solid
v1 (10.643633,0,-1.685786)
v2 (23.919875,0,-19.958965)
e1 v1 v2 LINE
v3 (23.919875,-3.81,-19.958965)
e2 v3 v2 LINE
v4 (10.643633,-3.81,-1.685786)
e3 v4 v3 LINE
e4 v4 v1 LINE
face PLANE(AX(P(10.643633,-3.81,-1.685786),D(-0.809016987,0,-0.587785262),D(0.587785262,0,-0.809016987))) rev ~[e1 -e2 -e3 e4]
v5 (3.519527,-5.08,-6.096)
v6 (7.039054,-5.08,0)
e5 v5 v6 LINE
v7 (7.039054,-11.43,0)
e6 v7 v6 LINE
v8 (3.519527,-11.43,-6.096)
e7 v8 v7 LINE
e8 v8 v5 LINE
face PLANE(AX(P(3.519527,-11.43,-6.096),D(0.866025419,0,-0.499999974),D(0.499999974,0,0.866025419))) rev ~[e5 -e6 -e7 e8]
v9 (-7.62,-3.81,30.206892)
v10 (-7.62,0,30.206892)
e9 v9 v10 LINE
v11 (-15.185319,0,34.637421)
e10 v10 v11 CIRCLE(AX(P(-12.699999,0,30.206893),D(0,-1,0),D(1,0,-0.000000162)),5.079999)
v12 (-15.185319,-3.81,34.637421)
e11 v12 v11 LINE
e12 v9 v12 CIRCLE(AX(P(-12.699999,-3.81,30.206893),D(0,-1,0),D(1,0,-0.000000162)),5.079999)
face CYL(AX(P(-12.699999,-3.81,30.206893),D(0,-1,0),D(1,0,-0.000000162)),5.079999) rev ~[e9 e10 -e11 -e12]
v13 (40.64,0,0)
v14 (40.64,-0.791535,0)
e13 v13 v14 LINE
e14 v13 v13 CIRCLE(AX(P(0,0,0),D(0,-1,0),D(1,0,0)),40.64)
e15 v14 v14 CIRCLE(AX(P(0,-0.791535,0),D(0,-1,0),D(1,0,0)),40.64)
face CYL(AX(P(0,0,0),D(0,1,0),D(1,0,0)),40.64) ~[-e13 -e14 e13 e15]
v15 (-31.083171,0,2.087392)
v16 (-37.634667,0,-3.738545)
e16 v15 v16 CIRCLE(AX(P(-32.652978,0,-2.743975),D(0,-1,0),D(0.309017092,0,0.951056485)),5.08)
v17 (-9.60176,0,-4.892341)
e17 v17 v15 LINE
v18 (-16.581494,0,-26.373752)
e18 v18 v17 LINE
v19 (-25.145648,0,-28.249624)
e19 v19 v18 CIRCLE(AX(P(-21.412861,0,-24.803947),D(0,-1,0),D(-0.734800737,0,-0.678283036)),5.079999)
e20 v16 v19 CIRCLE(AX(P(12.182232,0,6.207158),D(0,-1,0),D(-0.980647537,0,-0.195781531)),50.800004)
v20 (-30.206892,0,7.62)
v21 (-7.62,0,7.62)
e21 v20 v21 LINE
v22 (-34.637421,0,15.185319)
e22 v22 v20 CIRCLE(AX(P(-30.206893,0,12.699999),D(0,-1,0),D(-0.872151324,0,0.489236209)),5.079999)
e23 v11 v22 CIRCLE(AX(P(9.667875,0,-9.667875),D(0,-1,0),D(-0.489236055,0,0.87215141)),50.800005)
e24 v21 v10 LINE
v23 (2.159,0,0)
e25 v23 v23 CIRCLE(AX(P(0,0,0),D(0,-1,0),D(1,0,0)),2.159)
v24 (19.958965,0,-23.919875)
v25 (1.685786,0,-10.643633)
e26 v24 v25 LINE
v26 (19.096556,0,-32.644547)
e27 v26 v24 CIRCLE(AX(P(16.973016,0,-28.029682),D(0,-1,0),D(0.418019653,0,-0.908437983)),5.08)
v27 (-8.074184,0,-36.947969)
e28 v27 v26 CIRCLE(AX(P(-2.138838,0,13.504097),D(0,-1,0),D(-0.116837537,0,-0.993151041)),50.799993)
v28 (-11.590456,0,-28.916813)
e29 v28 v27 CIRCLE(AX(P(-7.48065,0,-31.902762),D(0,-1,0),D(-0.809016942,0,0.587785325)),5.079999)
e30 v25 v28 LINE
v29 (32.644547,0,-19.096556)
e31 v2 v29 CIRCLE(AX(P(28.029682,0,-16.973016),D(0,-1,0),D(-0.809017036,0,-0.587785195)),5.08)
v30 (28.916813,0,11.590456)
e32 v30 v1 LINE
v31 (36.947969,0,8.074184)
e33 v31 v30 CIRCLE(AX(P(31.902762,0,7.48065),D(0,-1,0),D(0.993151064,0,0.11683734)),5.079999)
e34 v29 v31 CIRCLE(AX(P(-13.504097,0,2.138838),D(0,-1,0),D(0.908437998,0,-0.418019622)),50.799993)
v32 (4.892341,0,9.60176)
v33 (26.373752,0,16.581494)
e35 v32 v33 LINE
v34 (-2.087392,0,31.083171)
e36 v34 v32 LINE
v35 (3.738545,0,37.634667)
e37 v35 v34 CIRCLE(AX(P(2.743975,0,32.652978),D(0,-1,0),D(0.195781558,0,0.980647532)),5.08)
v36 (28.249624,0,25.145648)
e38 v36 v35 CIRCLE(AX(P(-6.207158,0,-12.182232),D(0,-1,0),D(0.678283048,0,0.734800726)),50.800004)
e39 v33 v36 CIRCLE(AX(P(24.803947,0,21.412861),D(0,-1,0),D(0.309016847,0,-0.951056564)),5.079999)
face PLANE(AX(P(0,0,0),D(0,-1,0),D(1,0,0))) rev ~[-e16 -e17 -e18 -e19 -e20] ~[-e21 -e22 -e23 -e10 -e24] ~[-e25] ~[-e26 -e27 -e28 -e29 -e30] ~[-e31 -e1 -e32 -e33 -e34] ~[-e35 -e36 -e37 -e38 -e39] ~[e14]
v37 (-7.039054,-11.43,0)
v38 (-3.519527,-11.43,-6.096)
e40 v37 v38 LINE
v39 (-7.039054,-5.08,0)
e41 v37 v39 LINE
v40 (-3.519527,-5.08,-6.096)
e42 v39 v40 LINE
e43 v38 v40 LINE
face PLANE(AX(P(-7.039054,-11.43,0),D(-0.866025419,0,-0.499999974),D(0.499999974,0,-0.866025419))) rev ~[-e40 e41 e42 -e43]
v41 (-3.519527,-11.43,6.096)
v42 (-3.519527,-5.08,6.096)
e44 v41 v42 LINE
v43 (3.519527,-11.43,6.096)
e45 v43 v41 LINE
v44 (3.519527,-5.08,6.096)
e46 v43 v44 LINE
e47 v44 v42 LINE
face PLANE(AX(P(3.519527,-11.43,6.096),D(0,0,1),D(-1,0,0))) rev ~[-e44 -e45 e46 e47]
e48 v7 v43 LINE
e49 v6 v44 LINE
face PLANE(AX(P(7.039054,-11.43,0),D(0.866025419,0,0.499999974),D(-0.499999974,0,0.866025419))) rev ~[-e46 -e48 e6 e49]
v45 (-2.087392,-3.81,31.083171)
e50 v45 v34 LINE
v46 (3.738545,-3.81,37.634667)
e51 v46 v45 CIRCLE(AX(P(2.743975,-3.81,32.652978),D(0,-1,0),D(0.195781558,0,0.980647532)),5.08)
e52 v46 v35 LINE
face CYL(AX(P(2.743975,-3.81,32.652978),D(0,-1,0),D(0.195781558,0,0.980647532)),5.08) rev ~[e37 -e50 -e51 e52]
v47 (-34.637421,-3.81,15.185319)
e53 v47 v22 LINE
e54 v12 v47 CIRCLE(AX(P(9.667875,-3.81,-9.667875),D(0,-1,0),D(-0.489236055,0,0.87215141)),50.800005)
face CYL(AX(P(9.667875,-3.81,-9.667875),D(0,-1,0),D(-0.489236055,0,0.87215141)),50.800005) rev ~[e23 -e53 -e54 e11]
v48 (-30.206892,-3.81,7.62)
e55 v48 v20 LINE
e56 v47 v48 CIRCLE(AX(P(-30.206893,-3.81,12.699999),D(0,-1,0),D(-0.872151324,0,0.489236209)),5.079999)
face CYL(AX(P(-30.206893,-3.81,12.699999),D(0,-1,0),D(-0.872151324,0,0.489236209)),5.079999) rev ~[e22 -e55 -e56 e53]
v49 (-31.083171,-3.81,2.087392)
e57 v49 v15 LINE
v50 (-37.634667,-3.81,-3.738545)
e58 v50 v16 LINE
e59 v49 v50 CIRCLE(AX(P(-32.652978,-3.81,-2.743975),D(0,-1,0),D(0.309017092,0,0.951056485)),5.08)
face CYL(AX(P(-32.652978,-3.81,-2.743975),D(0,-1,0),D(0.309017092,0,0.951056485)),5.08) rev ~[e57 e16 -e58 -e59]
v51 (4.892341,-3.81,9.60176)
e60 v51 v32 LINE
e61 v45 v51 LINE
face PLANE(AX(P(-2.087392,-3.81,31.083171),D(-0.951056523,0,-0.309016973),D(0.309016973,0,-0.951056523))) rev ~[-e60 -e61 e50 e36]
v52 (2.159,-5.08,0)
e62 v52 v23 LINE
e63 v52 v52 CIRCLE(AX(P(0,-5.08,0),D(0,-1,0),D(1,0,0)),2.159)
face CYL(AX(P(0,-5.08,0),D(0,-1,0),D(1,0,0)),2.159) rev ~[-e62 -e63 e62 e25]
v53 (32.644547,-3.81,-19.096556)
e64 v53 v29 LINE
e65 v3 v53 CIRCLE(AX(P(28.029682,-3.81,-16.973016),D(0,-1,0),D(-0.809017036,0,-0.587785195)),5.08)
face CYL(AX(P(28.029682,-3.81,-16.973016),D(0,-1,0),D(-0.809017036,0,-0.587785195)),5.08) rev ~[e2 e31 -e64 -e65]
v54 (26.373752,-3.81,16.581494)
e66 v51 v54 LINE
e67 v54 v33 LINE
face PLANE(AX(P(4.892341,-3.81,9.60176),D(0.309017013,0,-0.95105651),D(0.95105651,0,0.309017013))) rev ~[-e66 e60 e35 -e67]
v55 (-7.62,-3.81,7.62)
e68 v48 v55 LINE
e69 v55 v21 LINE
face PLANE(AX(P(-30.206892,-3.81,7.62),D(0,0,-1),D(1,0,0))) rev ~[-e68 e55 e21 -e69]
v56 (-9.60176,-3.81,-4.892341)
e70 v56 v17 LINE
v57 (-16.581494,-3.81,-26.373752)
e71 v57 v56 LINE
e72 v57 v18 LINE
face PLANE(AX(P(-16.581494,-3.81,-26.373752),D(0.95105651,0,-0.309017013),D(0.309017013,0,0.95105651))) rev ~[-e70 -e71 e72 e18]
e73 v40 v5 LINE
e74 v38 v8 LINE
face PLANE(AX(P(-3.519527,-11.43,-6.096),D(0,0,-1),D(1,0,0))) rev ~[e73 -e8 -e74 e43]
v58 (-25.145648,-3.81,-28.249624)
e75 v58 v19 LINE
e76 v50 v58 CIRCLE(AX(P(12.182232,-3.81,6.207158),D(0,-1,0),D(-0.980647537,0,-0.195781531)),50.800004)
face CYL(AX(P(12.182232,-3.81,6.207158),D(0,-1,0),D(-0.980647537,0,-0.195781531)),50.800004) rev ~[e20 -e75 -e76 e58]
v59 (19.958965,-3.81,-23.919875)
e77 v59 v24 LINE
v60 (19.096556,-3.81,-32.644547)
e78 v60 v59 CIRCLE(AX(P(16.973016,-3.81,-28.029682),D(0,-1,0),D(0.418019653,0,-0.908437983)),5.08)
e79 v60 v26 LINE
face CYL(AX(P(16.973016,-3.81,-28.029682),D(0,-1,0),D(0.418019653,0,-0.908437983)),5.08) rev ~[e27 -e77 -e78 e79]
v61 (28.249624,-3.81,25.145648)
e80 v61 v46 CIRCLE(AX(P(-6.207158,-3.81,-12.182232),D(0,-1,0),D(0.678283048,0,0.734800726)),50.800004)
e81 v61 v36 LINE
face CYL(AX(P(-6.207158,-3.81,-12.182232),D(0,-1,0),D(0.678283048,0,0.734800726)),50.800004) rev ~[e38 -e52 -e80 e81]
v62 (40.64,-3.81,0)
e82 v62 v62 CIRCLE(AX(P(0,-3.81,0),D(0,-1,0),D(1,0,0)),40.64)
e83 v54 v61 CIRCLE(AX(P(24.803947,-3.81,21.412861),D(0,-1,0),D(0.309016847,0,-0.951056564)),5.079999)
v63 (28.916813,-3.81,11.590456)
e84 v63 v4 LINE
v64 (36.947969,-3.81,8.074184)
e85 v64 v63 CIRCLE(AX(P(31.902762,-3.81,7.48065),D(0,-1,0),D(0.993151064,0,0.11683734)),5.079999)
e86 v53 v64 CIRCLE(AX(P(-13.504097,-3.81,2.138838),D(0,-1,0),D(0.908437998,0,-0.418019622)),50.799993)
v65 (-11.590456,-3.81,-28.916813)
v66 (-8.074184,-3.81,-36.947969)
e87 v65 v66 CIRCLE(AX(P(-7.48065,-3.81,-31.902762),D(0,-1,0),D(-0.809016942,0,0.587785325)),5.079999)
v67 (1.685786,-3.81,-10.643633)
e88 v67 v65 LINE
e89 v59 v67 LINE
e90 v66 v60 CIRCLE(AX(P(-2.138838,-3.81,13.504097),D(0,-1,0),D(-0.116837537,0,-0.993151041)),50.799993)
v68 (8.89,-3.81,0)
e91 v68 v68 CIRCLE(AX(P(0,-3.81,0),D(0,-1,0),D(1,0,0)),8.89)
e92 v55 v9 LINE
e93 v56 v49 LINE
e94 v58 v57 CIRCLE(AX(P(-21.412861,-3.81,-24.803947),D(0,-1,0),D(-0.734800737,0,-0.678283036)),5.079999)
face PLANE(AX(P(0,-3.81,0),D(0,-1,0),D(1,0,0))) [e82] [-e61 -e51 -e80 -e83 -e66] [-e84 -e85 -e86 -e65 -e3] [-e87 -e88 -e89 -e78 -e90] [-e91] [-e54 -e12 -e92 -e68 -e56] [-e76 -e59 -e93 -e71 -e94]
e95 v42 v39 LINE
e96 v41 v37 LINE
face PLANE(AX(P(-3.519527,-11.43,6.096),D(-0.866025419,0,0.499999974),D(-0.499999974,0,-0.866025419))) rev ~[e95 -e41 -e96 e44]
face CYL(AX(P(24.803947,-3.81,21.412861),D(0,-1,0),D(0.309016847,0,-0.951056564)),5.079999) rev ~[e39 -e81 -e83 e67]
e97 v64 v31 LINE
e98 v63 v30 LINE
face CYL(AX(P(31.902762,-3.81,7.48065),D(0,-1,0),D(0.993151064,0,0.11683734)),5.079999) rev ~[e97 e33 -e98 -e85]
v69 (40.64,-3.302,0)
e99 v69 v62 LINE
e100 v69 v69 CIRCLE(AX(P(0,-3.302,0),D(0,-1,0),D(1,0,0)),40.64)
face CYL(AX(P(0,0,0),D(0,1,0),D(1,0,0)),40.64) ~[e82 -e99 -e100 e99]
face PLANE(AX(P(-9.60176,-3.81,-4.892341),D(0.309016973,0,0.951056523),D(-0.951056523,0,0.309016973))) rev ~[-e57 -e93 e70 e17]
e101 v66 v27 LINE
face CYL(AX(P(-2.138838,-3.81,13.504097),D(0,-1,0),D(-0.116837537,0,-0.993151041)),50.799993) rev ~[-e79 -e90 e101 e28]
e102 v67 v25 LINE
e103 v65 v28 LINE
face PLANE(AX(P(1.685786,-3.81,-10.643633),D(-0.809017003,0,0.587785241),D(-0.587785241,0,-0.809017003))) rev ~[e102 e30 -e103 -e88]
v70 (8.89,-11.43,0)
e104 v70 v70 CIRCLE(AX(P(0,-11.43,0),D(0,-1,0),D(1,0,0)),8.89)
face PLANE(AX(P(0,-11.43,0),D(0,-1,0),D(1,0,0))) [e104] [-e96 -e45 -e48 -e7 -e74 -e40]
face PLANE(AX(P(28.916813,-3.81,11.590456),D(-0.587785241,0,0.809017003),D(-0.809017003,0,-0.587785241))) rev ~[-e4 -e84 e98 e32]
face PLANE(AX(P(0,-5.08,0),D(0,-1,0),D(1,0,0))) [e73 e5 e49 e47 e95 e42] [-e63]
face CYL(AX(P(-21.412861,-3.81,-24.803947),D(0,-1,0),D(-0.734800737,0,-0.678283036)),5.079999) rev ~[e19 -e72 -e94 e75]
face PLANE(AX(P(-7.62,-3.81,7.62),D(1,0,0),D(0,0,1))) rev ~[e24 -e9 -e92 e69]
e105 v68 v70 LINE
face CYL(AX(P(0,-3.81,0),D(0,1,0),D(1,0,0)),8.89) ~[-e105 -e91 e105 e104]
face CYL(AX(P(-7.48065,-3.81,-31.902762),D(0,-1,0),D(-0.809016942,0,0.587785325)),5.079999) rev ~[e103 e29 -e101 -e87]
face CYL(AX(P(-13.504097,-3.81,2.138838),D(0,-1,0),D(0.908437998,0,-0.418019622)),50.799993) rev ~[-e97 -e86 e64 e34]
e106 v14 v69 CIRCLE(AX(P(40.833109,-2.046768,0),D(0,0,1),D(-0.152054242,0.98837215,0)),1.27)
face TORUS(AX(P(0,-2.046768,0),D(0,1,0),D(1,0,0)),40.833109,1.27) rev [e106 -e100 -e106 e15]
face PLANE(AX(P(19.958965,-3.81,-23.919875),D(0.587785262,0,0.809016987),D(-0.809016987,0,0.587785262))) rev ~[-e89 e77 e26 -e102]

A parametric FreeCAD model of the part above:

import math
import FreeCAD as App
import Part
import Sketcher
from FreeCAD import Vector
Q = App.Units.Quantity


def add_polygon(sketch, points):
    """Adds a closed chain of lines whose ends are joined by coincident constraints."""
    first, n = sketch.GeometryCount, len(points)
    for a, b in zip(points, points[1:] + points[:1]):
        sketch.addGeometry(Part.LineSegment(App.Vector(*a, 0), App.Vector(*b, 0)), False)
    for i in range(n):
        sketch.addConstraint(Sketcher.Constraint("Coincident", first + i, 2, first + (i + 1) % n, 1))

doc = App.newDocument("Part")
body = doc.addObject("PartDesign::Body", "Body")

# Sketch on XZ plane
sketch1 = doc.addObject("Sketcher::SketchObject", "Sketch")
body.addObject(sketch1)
sketch1.AttachmentSupport = (doc.XZ_Plane, [""])
sketch1.MapMode = "FlatFace"
sketch1.addGeometry(Part.Circle(Vector(0, 0, 0), Vector(0, 0, 1), 41), False)
sketch1.addConstraint([
    Sketcher.Constraint("Coincident", 0, 3, -1, 1),
    Sketcher.Constraint("Diameter", 0, Q("3.2 in")),
])
pad1 = doc.addObject("PartDesign::Pad", "Pad")
body.addObject(pad1)
pad1.Profile = sketch1
pad1.Length = Q("0.15 in")

# Sketch on XZ plane
sketch2 = doc.addObject("Sketcher::SketchObject", "Sketch001")
body.addObject(sketch2)
sketch2.AttachmentSupport = (doc.XZ_Plane, [""])
sketch2.MapMode = "FlatFace"
sketch2.AttachmentOffset = App.Placement(Vector(0, 0, 0.15 * 25.4), App.Rotation())
sketch2.addGeometry([
    Part.LineSegment(Vector(-30, 8, 0), Vector(-8, 8, 0)),  # 0
    Part.LineSegment(Vector(-8, 8, 0), Vector(-8, 30, 0)),  # 1
    Part.ArcOfCircle(Part.Circle(Vector(-13, 30, 0), Vector(0, 0, 1), 5), math.radians(0), math.radians(119)),  # 2
    Part.ArcOfCircle(Part.Circle(Vector(10, -10, 0), Vector(0, 0, 1), 51), math.radians(119), math.radians(151)),  # 3
    Part.ArcOfCircle(Part.Circle(Vector(-30, 13, 0), Vector(0, 0, 1), 5), math.radians(151), math.radians(270)),  # 4
    Part.LineSegment(Vector(-17, -26, 0), Vector(-10, -5, 0)),  # 5
    Part.LineSegment(Vector(-10, -5, 0), Vector(-31, 2, 0)),  # 6
    Part.ArcOfCircle(Part.Circle(Vector(-33, -3, 0), Vector(0, 0, 1), 5), math.radians(72), math.radians(191)),  # 7
    Part.ArcOfCircle(Part.Circle(Vector(12, 6, 0), Vector(0, 0, 1), 51), math.radians(-169), math.radians(-137)),  # 8
    Part.ArcOfCircle(Part.Circle(Vector(-21, -25, 0), Vector(0, 0, 1), 5), math.radians(-137), math.radians(-18)),  # 9
    Part.ArcOfCircle(Part.Circle(Vector(-7, -32, 0), Vector(0, 0, 1), 5), math.radians(144), math.radians(263)),  # 10
    Part.ArcOfCircle(Part.Circle(Vector(-2, 14, 0), Vector(0, 0, 1), 51), math.radians(-97), math.radians(-65)),  # 11
    Part.ArcOfCircle(Part.Circle(Vector(17, -28, 0), Vector(0, 0, 1), 5), math.radians(-65), math.radians(54)),  # 12
    Part.LineSegment(Vector(20, -24, 0), Vector(2, -11, 0)),  # 13
    Part.LineSegment(Vector(2, -11, 0), Vector(-12, -29, 0)),  # 14
    Part.ArcOfCircle(Part.Circle(Vector(28, -17, 0), Vector(0, 0, 1), 5), math.radians(-144), math.radians(-25)),  # 15
    Part.ArcOfCircle(Part.Circle(Vector(-14, 2, 0), Vector(0, 0, 1), 51), math.radians(-25), math.radians(7)),  # 16
    Part.ArcOfCircle(Part.Circle(Vector(32, 7, 0), Vector(0, 0, 1), 5), math.radians(7), math.radians(126)),  # 17
    Part.LineSegment(Vector(29, 12, 0), Vector(11, -2, 0)),  # 18
    Part.LineSegment(Vector(11, -2, 0), Vector(24, -20, 0)),  # 19
    Part.ArcOfCircle(Part.Circle(Vector(25, 21, 0), Vector(0, 0, 1), 5), math.radians(-72), math.radians(47)),  # 20
    Part.ArcOfCircle(Part.Circle(Vector(-6, -12, 0), Vector(0, 0, 1), 51), math.radians(47), math.radians(79)),  # 21
    Part.ArcOfCircle(Part.Circle(Vector(3, 33, 0), Vector(0, 0, 1), 5), math.radians(79), math.radians(198)),  # 22
    Part.LineSegment(Vector(-2, 31, 0), Vector(5, 10, 0)),  # 23
    Part.LineSegment(Vector(5, 10, 0), Vector(26, 17, 0)),  # 24
], False)
sketch2.addConstraint([
    Sketcher.Constraint("Coincident", 0, 2, 1, 1),
    Sketcher.Constraint("Tangent", 1, 2, 2, 1),
    Sketcher.Constraint("Tangent", 2, 2, 3, 1),
    Sketcher.Constraint("Tangent", 3, 2, 4, 1),
    Sketcher.Constraint("Tangent", 4, 2, 0, 1),
    Sketcher.Constraint("Coincident", 5, 2, 6, 1),
    Sketcher.Constraint("Tangent", 6, 2, 7, 1),
    Sketcher.Constraint("Tangent", 7, 2, 8, 1),
    Sketcher.Constraint("Tangent", 8, 2, 9, 1),
    Sketcher.Constraint("Tangent", 9, 2, 5, 1),
    Sketcher.Constraint("Tangent", 10, 2, 11, 1),
    Sketcher.Constraint("Tangent", 11, 2, 12, 1),
    Sketcher.Constraint("Tangent", 12, 2, 13, 1),
    Sketcher.Constraint("Coincident", 13, 2, 14, 1),
    Sketcher.Constraint("Tangent", 14, 2, 10, 1),
    Sketcher.Constraint("Tangent", 15, 2, 16, 1),
    Sketcher.Constraint("Tangent", 16, 2, 17, 1),
    Sketcher.Constraint("Tangent", 17, 2, 18, 1),
    Sketcher.Constraint("Coincident", 18, 2, 19, 1),
    Sketcher.Constraint("Tangent", 19, 2, 15, 1),
    Sketcher.Constraint("Tangent", 20, 2, 21, 1),
    Sketcher.Constraint("Tangent", 21, 2, 22, 1),
    Sketcher.Constraint("Tangent", 22, 2, 23, 1),
    Sketcher.Constraint("Coincident", 23, 2, 24, 1),
    Sketcher.Constraint("Tangent", 24, 2, 20, 1),
    Sketcher.Constraint("Horizontal", 0),
    Sketcher.Constraint("Vertical", 1),
    Sketcher.Constraint("Equal", 2, 4),
    Sketcher.Constraint("Equal", 4, 7),
    Sketcher.Constraint("Equal", 3, 8),
    Sketcher.Constraint("Equal", 7, 9),
    Sketcher.Constraint("Equal", 9, 10),
    Sketcher.Constraint("Equal", 10, 12),
    Sketcher.Constraint("Equal", 12, 15),
    Sketcher.Constraint("Equal", 11, 16),
    Sketcher.Constraint("Equal", 15, 17),
    Sketcher.Constraint("Equal", 17, 20),
    Sketcher.Constraint("Equal", 8, 21),
    Sketcher.Constraint("Equal", 20, 22),
    Sketcher.Constraint("Perpendicular", 5, 6),
    Sketcher.Constraint("Perpendicular", 13, 14),
    Sketcher.Constraint("Perpendicular", 18, 19),
    Sketcher.Constraint("Perpendicular", 23, 24),
    Sketcher.Constraint("Equal", 0, 1),
    Sketcher.Constraint("Equal", 5, 6),
    Sketcher.Constraint("Equal", 6, 13),
    Sketcher.Constraint("Equal", 13, 14),
    Sketcher.Constraint("Equal", 14, 18),
    Sketcher.Constraint("Equal", 18, 19),
    Sketcher.Constraint("Equal", 19, 23),
    Sketcher.Constraint("Equal", 23, 24),
    Sketcher.Constraint("Radius", 8, Q("2.0000002 in")),
    Sketcher.Constraint("Radius", 2, Q("0.2 in")),
    Sketcher.Constraint("Angle", 5, Q("71.999999 deg")),
    Sketcher.Constraint("Angle", 13, Q("143.999999 deg")),
    Sketcher.Constraint("Angle", 18, Q("-144.000001 deg")),
    Sketcher.Constraint("Angle", 23, Q("-72.000001 deg")),
    Sketcher.Constraint("DistanceX", 2, 3, -1, 1, Q("0.5 in")),
    Sketcher.Constraint("DistanceY", -1, 1, 4, 3, Q("0.5 in")),
    Sketcher.Constraint("Radius", 11, 50.799993),
    Sketcher.Constraint("DistanceX", 10, 3, 12, 2, Q("1.0802998 in")),
    Sketcher.Constraint("DistanceX", 0, 1, 0, 2, 22.586892),
    Sketcher.Constraint("DistanceY", 3, 3, 7, 3, 6.9239),
    Sketcher.Constraint("DistanceX", 11, 3, 17, 3, 34.0416),
    Sketcher.Constraint("DistanceY", 12, 2, 3, 3, 14.252),
    Sketcher.Constraint("DistanceY", 21, 3, 13, 2, 1.538599),
    Sketcher.Constraint("DistanceY", 8, 3, 17, 2, 5.383298),
    Sketcher.Constraint("DistanceX", 18, 2, 8, 3, 1.538599),
    Sketcher.Constraint("DistanceX", -1, 1, 8, 3, 12.182232),
    Sketcher.Constraint("DistanceX", -1, 1, 23, 2, 4.892341),
])
pocket1 = doc.addObject("PartDesign::Pocket", "Pocket")
body.addObject(pocket1)
pocket1.Profile = sketch2
pocket1.Length = Q("1 in")

# Sketch on XZ plane
sketch3 = doc.addObject("Sketcher::SketchObject", "Sketch002")
body.addObject(sketch3)
sketch3.AttachmentSupport = (doc.XZ_Plane, [""])
sketch3.MapMode = "FlatFace"
sketch3.AttachmentOffset = App.Placement(Vector(0, 0, 0.15 * 25.4), App.Rotation())
sketch3.addGeometry(Part.Circle(Vector(0, 0, 0), Vector(0, 0, 1), 9), False)
sketch3.addConstraint([
    Sketcher.Constraint("Coincident", 0, 3, -1, 1),
    Sketcher.Constraint("Diameter", 0, Q("0.7 in")),
])
pad2 = doc.addObject("PartDesign::Pad", "Pad001")
body.addObject(pad2)
pad2.Profile = sketch3
pad2.Length = Q("0.3 in")

# Sketch on XZ plane
sketch4 = doc.addObject("Sketcher::SketchObject", "Sketch003")
body.addObject(sketch4)
sketch4.AttachmentSupport = (doc.XZ_Plane, [""])
sketch4.MapMode = "FlatFace"
sketch4.AttachmentOffset = App.Placement(Vector(0, 0, 0.45 * 25.4), App.Rotation())
add_polygon(sketch4, [(4, -6), (7, 0), (4, 6), (-4, 6), (-7, 0), (-4, -6)])  # lines 0-5
sketch4.addConstraint([
    Sketcher.Constraint("Horizontal", 2),
    Sketcher.Constraint("Horizontal", 5),
    Sketcher.Constraint("Symmetric", 0, 2, 3, 2, -1, 1),
    Sketcher.Constraint("Symmetric", 1, 2, 4, 2, -1, 1),
    Sketcher.Constraint("PointOnObject", 0, 2, -1),
    Sketcher.Constraint("Parallel", 0, 3),
    Sketcher.Constraint("Vertical", 2, 2, 4, 2),
    Sketcher.Constraint("Angle", 0, Q("60.000002 deg")),
    Sketcher.Constraint("DistanceY", -1, 1, 1, 2, Q("0.24 in")),
    Sketcher.Constraint("DistanceX", 2, 2, 2, 1, 7.039054),
])
pocket2 = doc.addObject("PartDesign::Pocket", "Pocket001")
body.addObject(pocket2)
pocket2.Profile = sketch4
pocket2.Length = Q("0.25 in")

# Sketch on XZ plane
sketch5 = doc.addObject("Sketcher::SketchObject", "Sketch004")
body.addObject(sketch5)
sketch5.AttachmentSupport = (doc.XZ_Plane, [""])
sketch5.MapMode = "FlatFace"
sketch5.AttachmentOffset = App.Placement(Vector(0, 0, 0.2 * 25.4), App.Rotation())
sketch5.addGeometry(Part.Circle(Vector(0, 0, 0), Vector(0, 0, 1), 2.2), False)
sketch5.addConstraint([
    Sketcher.Constraint("Coincident", 0, 3, -1, 1),
    Sketcher.Constraint("Diameter", 0, Q("0.17 in")),
])
pocket3 = doc.addObject("PartDesign::Pocket", "Pocket002")
body.addObject(pocket3)
pocket3.Profile = sketch5
pocket3.Length = Q("1 in")

# Sketch on XY plane
sketch6 = doc.addObject("Sketcher::SketchObject", "Sketch005")
body.addObject(sketch6)
sketch6.AttachmentSupport = (doc.XY_Plane, [""])
sketch6.MapMode = "FlatFace"
sketch6.addGeometry([
    Part.LineSegment(Vector(40.6, -3.3, 0), Vector(40.6, -0.8, 0)),
    Part.ArcOfCircle(Part.Circle(Vector(40.8, -2, 0), Vector(0, 0, 1), 1.3), math.radians(99), math.radians(261)),
], False)
sketch6.addConstraint([
    Sketcher.Constraint("Coincident", 0, 1, 1, 2),
    Sketcher.Constraint("Coincident", 1, 1, 0, 2),
    Sketcher.Constraint("Vertical", 0),
    Sketcher.Constraint("Radius", 1, Q("0.05 in")),
    Sketcher.Constraint("DistanceX", -1, 1, 0, 1, Q("1.6 in")),
    Sketcher.Constraint("DistanceY", 0, 1, -1, 1, Q("0.13 in")),
    Sketcher.Constraint("DistanceY", 0, 1, 0, 2, 2.510465),
])
groove = doc.addObject("PartDesign::Groove", "Groove")
body.addObject(groove)
groove.Profile = sketch6
groove.ReferenceAxis = (sketch6, ["V_Axis"])
groove.Angle = 360

doc.recompute()
